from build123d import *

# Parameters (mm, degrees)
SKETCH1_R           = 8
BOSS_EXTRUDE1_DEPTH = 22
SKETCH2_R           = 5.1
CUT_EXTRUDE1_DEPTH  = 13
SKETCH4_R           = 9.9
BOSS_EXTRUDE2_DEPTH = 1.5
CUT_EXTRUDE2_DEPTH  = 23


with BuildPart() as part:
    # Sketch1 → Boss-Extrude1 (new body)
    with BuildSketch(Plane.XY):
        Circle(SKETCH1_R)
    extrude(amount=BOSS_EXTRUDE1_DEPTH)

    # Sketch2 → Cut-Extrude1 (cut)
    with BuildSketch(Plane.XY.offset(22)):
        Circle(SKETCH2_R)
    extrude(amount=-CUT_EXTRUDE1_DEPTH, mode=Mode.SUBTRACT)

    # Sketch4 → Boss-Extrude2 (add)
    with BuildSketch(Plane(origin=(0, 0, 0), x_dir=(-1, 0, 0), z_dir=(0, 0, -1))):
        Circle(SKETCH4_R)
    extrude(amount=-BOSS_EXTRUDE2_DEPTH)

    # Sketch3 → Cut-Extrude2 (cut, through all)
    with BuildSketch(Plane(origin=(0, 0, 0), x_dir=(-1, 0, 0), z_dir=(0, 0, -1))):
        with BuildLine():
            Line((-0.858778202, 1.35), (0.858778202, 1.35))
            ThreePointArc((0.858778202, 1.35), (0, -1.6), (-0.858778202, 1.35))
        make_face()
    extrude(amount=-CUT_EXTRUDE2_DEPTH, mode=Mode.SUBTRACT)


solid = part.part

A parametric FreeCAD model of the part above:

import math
import FreeCAD as App
import Part
import Sketcher
from FreeCAD import Vector

doc = App.newDocument("Part")
body = doc.addObject("PartDesign::Body", "Body")

# Sketch on XY plane
sketch1 = body.newObject("Sketcher::SketchObject", "Sketch")
sketch1.AttachmentSupport = (doc.getObject("XY_Plane"), [""])
sketch1.MapMode = "FlatFace"
sketch1.addGeometry(Part.Circle(Vector(0, 0, 0), Vector(0, 0, 1), 8), False)
sketch1.addConstraint(Sketcher.Constraint("Coincident", 0, 3, -1, 1))
sketch1.addConstraint(Sketcher.Constraint("Diameter", 0, 16.0))
pad1 = body.newObject("PartDesign::Pad", "Pad")
pad1.Profile = sketch1
pad1.Length = 22

# Sketch on XY plane
sketch2 = body.newObject("Sketcher::SketchObject", "Sketch001")
sketch2.AttachmentSupport = (doc.getObject("XY_Plane"), [""])
sketch2.MapMode = "FlatFace"
sketch2.AttachmentOffset = App.Placement(Vector(0, 0, 22), App.Rotation())
sketch2.addGeometry(Part.Circle(Vector(0, 0, 0), Vector(0, 0, 1), 5.1), False)
sketch2.addConstraint(Sketcher.Constraint("Coincident", 0, 3, -1, 1))
sketch2.addConstraint(Sketcher.Constraint("Diameter", 0, 10.2))
pocket1 = body.newObject("PartDesign::Pocket", "Pocket")
pocket1.Profile = sketch2
pocket1.Length = 13

# Sketch on XY plane
sketch3 = body.newObject("Sketcher::SketchObject", "Sketch002")
sketch3.AttachmentSupport = (doc.getObject("XY_Plane"), [""])
sketch3.MapMode = "FlatFace"
sketch3.addGeometry(Part.Circle(Vector(0, 0, 0), Vector(0, 0, 1), 9.9), False)
sketch3.addConstraint(Sketcher.Constraint("Coincident", 0, 3, -1, 1))
sketch3.addConstraint(Sketcher.Constraint("Diameter", 0, 19.8))
pad2 = body.newObject("PartDesign::Pad", "Pad001")
pad2.Profile = sketch3
pad2.Length = 1.5

# Sketch on XY plane
sketch4 = body.newObject("Sketcher::SketchObject", "Sketch003")
sketch4.AttachmentSupport = (doc.getObject("XY_Plane"), [""])
sketch4.MapMode = "FlatFace"
sketch4.addGeometry(Part.LineSegment(Vector(-0.858778, 1.35, 0), Vector(0.858778, 1.35, 0)), False)
sketch4.addGeometry(Part.ArcOfCircle(Part.Circle(Vector(0, 0, 0), Vector(0, 0, 1), 1.6), math.radians(122.461745), math.radians(417.538255)), False)
sketch4.addConstraint(Sketcher.Constraint("Coincident", 0, 1, 1, 1))
sketch4.addConstraint(Sketcher.Constraint("Coincident", 1, 2, 0, 2))
sketch4.addConstraint(Sketcher.Constraint("Horizontal", 0))
sketch4.addConstraint(Sketcher.Constraint("Coincident", 1, 3, -1, 1))
sketch4.addConstraint(Sketcher.Constraint("Radius", 1, 1.6))
sketch4.addConstraint(Sketcher.Constraint("DistanceY", -1, 1, 0, 1, 1.35))
pocket2 = body.newObject("PartDesign::Pocket", "Pocket001")
pocket2.Profile = sketch4
pocket2.Type = "ThroughAll"
pocket2.Reversed = True

doc.recompute()
